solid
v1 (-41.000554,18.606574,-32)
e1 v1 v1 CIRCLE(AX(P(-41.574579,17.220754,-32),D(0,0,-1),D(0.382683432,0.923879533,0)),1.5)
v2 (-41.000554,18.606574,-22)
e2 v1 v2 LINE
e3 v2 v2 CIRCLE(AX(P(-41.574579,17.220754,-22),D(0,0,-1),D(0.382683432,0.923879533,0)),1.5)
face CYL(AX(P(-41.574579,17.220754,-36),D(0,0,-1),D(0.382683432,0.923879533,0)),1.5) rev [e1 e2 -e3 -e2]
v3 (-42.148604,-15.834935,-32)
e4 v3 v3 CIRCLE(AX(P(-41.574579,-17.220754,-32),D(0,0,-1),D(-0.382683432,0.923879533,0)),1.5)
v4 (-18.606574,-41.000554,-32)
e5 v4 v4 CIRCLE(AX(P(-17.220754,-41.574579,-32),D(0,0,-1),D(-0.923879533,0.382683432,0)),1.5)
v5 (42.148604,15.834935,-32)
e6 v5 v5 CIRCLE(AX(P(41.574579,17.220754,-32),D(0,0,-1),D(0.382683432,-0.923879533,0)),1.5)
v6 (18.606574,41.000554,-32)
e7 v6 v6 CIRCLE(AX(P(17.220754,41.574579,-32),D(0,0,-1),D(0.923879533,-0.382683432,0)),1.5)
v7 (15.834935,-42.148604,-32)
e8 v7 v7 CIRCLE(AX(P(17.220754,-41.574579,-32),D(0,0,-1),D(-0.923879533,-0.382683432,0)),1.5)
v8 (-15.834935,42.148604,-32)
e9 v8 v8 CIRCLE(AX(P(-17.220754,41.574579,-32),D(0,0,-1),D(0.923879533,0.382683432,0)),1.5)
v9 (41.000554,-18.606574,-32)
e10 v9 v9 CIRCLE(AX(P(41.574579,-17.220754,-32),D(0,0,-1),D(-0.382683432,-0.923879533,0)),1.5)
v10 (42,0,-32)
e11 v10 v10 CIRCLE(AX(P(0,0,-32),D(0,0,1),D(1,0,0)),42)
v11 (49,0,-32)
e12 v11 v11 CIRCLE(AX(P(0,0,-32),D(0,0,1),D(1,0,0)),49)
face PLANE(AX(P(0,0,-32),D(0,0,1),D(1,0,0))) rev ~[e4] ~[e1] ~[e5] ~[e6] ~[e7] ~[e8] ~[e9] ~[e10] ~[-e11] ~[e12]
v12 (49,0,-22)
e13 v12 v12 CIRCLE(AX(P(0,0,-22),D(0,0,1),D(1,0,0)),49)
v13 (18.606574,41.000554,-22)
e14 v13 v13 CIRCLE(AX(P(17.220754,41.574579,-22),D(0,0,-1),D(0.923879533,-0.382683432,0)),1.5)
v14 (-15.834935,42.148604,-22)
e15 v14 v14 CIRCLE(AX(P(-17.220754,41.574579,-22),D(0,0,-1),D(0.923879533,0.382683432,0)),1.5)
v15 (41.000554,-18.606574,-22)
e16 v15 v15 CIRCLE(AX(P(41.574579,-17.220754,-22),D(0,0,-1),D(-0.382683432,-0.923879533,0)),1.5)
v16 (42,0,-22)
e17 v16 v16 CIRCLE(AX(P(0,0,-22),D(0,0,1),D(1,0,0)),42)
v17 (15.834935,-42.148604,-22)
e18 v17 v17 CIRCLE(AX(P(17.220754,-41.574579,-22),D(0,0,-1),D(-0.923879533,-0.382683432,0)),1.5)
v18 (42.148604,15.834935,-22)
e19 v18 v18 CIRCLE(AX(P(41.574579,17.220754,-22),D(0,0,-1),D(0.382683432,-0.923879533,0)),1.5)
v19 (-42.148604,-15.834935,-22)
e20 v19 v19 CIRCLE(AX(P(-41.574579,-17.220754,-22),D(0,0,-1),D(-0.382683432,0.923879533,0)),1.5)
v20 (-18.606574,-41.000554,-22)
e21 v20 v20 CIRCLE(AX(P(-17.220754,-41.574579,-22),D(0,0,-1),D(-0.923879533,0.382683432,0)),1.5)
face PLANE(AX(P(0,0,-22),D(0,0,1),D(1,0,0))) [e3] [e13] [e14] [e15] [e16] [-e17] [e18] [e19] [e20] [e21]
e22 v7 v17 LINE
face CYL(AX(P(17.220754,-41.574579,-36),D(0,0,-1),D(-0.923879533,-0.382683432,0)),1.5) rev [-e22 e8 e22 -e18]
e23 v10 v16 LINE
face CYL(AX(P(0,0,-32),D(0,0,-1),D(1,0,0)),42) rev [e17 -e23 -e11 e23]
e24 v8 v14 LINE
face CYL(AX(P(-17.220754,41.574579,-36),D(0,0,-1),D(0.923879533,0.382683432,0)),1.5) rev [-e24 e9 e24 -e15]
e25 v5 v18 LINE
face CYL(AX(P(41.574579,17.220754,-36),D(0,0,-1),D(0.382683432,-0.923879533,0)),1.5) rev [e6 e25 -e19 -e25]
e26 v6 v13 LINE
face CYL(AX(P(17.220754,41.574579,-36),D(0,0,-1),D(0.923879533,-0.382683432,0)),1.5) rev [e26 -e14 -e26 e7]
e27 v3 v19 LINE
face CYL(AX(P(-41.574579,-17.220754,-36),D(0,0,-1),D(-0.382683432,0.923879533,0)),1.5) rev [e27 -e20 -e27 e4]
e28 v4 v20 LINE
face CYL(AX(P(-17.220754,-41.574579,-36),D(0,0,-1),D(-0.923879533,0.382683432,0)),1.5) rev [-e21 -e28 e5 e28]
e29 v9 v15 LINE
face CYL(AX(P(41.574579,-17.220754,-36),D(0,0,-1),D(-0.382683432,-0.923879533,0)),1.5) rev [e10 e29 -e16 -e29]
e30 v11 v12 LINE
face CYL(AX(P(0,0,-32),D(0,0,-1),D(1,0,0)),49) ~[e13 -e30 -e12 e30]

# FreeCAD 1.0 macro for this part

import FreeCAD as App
import Part
import Sketcher

V = App.Vector

doc = App.newDocument("Part")
body = doc.addObject("PartDesign::Body", "Body")

sketch1 = body.newObject("Sketcher::SketchObject", "Sketch")
sketch1.AttachmentSupport = (doc.getObject("XY_Plane"), [""])
sketch1.MapMode = "FlatFace"
sketch1.addGeometry(Part.Circle(V(0, 0, 0), V(0, 0, 1), 1.5), False)
sketch1.addConstraint(Sketcher.Constraint("Coincident", 0, 3, -1, 1))
sketch1.addConstraint(Sketcher.Constraint("Diameter", 0, 3.0))
pad1 = body.newObject("PartDesign::Pad", "Pad")
pad1.Profile = sketch1
pad1.Length = 20
body2 = doc.addObject("PartDesign::Body", "Body001")
doc.recompute()

body.Placement = App.Placement(V(-31.819805, 31.819805, -18), App.Rotation(V(0, 0, 1), 45))
boolean = body2.newObject("PartDesign::Boolean", "Boolean")
boolean.Type = "Fuse"
boolean.addObjects([body])
body3 = doc.addObject("PartDesign::Body", "Body002")

sketch2 = body3.newObject("Sketcher::SketchObject", "Sketch001")
sketch2.AttachmentSupport = (doc.getObject("XY_Plane002"), [""])
sketch2.MapMode = "FlatFace"
sketch2.AttachmentOffset = App.Placement(V(0, 0, -18), App.Rotation())
sketch2.addGeometry(Part.Circle(V(-45, 0, 0), V(0, 0, 1), 1.5), False)
sketch2.addConstraint(Sketcher.Constraint("PointOnObject", 0, 3, -1))
sketch2.addConstraint(Sketcher.Constraint("Diameter", 0, 3.0))
sketch2.addConstraint(Sketcher.Constraint("DistanceX", 0, 3, -1, 1, 45.0))
pad2 = body3.newObject("PartDesign::Pad", "Pad001")
pad2.Profile = sketch2
pad2.Length = 20
body4 = doc.addObject("PartDesign::Body", "Body003")

sketch3 = body4.newObject("Sketcher::SketchObject", "Sketch002")
sketch3.AttachmentSupport = (doc.getObject("XY_Plane003"), [""])
sketch3.MapMode = "FlatFace"
sketch3.addGeometry(Part.Circle(V(0, 0, 0), V(0, 0, 1), 1.5), False)
sketch3.addConstraint(Sketcher.Constraint("Coincident", 0, 3, -1, 1))
sketch3.addConstraint(Sketcher.Constraint("Diameter", 0, 3.0))
pad3 = body4.newObject("PartDesign::Pad", "Pad002")
pad3.Profile = sketch3
pad3.Length = 20
body5 = doc.addObject("PartDesign::Body", "Body004")
doc.recompute()

body4.Placement = App.Placement(V(-31.819805, -31.819805, -18), App.Rotation(V(0, 0, 1), 135))
boolean2 = body5.newObject("PartDesign::Boolean", "Boolean001")
boolean2.Type = "Fuse"
boolean2.addObjects([body4])
body6 = doc.addObject("PartDesign::Body", "Body005")

sketch4 = body6.newObject("Sketcher::SketchObject", "Sketch003")
sketch4.AttachmentSupport = (doc.getObject("XY_Plane005"), [""])
sketch4.MapMode = "FlatFace"
sketch4.AttachmentOffset = App.Placement(V(0, 0, -18), App.Rotation())
sketch4.addGeometry(Part.Circle(V(0, -45, 0), V(0, 0, 1), 1.5), False)
sketch4.addConstraint(Sketcher.Constraint("PointOnObject", 0, 3, -2))
sketch4.addConstraint(Sketcher.Constraint("Diameter", 0, 3.0))
sketch4.addConstraint(Sketcher.Constraint("DistanceY", 0, 3, -1, 1, 45.0))
pad4 = body6.newObject("PartDesign::Pad", "Pad003")
pad4.Profile = sketch4
pad4.Length = 20
body7 = doc.addObject("PartDesign::Body", "Body006")

sketch5 = body7.newObject("Sketcher::SketchObject", "Sketch004")
sketch5.AttachmentSupport = (doc.getObject("XY_Plane006"), [""])
sketch5.MapMode = "FlatFace"
sketch5.addGeometry(Part.Circle(V(0, 0, 0), V(0, 0, 1), 1.5), False)
sketch5.addConstraint(Sketcher.Constraint("Coincident", 0, 3, -1, 1))
sketch5.addConstraint(Sketcher.Constraint("Diameter", 0, 3.0))
pad5 = body7.newObject("PartDesign::Pad", "Pad004")
pad5.Profile = sketch5
pad5.Length = 20
body8 = doc.addObject("PartDesign::Body", "Body007")
doc.recompute()

body7.Placement = App.Placement(V(31.819805, -31.819805, -18), App.Rotation(V(0, 0, 1), 225))
boolean3 = body8.newObject("PartDesign::Boolean", "Boolean002")
boolean3.Type = "Fuse"
boolean3.addObjects([body7])
body9 = doc.addObject("PartDesign::Body", "Body008")

sketch6 = body9.newObject("Sketcher::SketchObject", "Sketch005")
sketch6.AttachmentSupport = (doc.getObject("XY_Plane008"), [""])
sketch6.MapMode = "FlatFace"
sketch6.AttachmentOffset = App.Placement(V(0, 0, -18), App.Rotation())
sketch6.addGeometry(Part.Circle(V(45, 0, 0), V(0, 0, 1), 1.5), False)
sketch6.addConstraint(Sketcher.Constraint("PointOnObject", 0, 3, -1))
sketch6.addConstraint(Sketcher.Constraint("Diameter", 0, 3.0))
sketch6.addConstraint(Sketcher.Constraint("DistanceX", -1, 1, 0, 3, 45.0))
pad6 = body9.newObject("PartDesign::Pad", "Pad005")
pad6.Profile = sketch6
pad6.Length = 20
body10 = doc.addObject("PartDesign::Body", "Body009")

sketch7 = body10.newObject("Sketcher::SketchObject", "Sketch006")
sketch7.AttachmentSupport = (doc.getObject("XY_Plane009"), [""])
sketch7.MapMode = "FlatFace"
sketch7.addGeometry(Part.Circle(V(0, 0, 0), V(0, 0, 1), 1.5), False)
sketch7.addConstraint(Sketcher.Constraint("Coincident", 0, 3, -1, 1))
sketch7.addConstraint(Sketcher.Constraint("Diameter", 0, 3.0))
pad7 = body10.newObject("PartDesign::Pad", "Pad006")
pad7.Profile = sketch7
pad7.Length = 20
body11 = doc.addObject("PartDesign::Body", "Body010")
doc.recompute()

body10.Placement = App.Placement(V(31.819805, 31.819805, -18), App.Rotation(V(0, 0, -1), 45))
boolean4 = body11.newObject("PartDesign::Boolean", "Boolean003")
boolean4.Type = "Fuse"
boolean4.addObjects([body10])
body12 = doc.addObject("PartDesign::Body", "Body011")
body12.AllowCompound = True

sketch8 = body12.newObject("Sketcher::SketchObject", "Sketch007")
sketch8.AttachmentSupport = (doc.getObject("XY_Plane011"), [""])
sketch8.MapMode = "FlatFace"
sketch8.AttachmentOffset = App.Placement(V(0, 0, -18), App.Rotation())
sketch8.addGeometry(Part.Circle(V(0, 45, 0), V(0, 0, 1), 1.5), False)
sketch8.addConstraint(Sketcher.Constraint("PointOnObject", 0, 3, -2))
sketch8.addConstraint(Sketcher.Constraint("Diameter", 0, 3.0))
sketch8.addConstraint(Sketcher.Constraint("DistanceY", -1, 1, 0, 3, 45.0))
pad8 = body12.newObject("PartDesign::Pad", "Pad007")
pad8.Profile = sketch8
pad8.Length = 20
doc.recompute()

boolean5 = body12.newObject("PartDesign::Boolean", "Boolean004")
boolean5.Type = "Fuse"
boolean5.addObjects([body2])
doc.recompute()

boolean6 = body12.newObject("PartDesign::Boolean", "Boolean005")
boolean6.Type = "Fuse"
boolean6.addObjects([body3])
doc.recompute()

boolean7 = body12.newObject("PartDesign::Boolean", "Boolean006")
boolean7.Type = "Fuse"
boolean7.addObjects([body5])
doc.recompute()

boolean8 = body12.newObject("PartDesign::Boolean", "Boolean007")
boolean8.Type = "Fuse"
boolean8.addObjects([body6])
doc.recompute()

boolean9 = body12.newObject("PartDesign::Boolean", "Boolean008")
boolean9.Type = "Fuse"
boolean9.addObjects([body8])
doc.recompute()

boolean10 = body12.newObject("PartDesign::Boolean", "Boolean009")
boolean10.Type = "Fuse"
boolean10.addObjects([body9])
doc.recompute()

boolean11 = body12.newObject("PartDesign::Boolean", "Boolean010")
boolean11.Type = "Fuse"
boolean11.addObjects([body11])
body13 = doc.addObject("PartDesign::Body", "Body012")
body13.AllowCompound = True
doc.recompute()

body12.Placement = App.Placement(V(0, 0, -8), App.Rotation(V(0, 0, 1), 22.5))
boolean12 = body13.newObject("PartDesign::Boolean", "Boolean011")
boolean12.Type = "Fuse"
boolean12.addObjects([body12])
body14 = doc.addObject("PartDesign::Body", "Body013")

sketch9 = body14.newObject("Sketcher::SketchObject", "Sketch008")
sketch9.AttachmentSupport = (doc.getObject("XY_Plane013"), [""])
sketch9.MapMode = "FlatFace"
sketch9.AttachmentOffset = App.Placement(V(0, 0, -22), App.Rotation())
sketch9.addGeometry(Part.Circle(V(0, 0, 0), V(0, 0, 1), 49), False)
sketch9.addGeometry(Part.Circle(V(0, 0, 0), V(0, 0, 1), 42), False)
sketch9.addConstraint(Sketcher.Constraint("Coincident", 0, 3, -1, 1))
sketch9.addConstraint(Sketcher.Constraint("Coincident", 1, 3, -1, 1))
sketch9.addConstraint(Sketcher.Constraint("Diameter", 0, 98.0))
sketch9.addConstraint(Sketcher.Constraint("Diameter", 1, 84.0))
pad9 = body14.newObject("PartDesign::Pad", "Pad008")
pad9.Profile = sketch9
pad9.Length = 10
doc.recompute()

boolean13 = body14.newObject("PartDesign::Boolean", "Boolean012")
boolean13.Type = "Cut"
boolean13.addObjects([body13])
body15 = doc.addObject("PartDesign::Body", "Body014")
doc.recompute()

body14.Placement = App.Placement(V(0, 0, -10), App.Rotation(V(0, 0, 1), 0))
boolean14 = body15.newObject("PartDesign::Boolean", "Boolean013")
boolean14.Type = "Fuse"
boolean14.addObjects([body14])

doc.recompute()
